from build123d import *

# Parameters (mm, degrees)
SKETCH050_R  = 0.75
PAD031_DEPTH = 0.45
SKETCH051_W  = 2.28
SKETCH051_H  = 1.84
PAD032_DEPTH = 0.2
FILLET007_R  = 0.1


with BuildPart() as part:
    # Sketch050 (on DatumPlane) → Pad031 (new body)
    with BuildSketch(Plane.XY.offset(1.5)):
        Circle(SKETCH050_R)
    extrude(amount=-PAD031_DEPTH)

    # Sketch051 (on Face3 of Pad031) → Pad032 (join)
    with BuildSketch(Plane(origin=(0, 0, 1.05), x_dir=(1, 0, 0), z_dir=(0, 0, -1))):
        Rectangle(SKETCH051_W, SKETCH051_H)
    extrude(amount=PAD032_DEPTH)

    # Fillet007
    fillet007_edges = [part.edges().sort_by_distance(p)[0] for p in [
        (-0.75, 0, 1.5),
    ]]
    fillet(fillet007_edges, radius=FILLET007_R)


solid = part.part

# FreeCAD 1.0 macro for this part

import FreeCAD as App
import Part
import Sketcher
from FreeCAD import Vector
Q = App.Units.Quantity


def edges_at(feature, points):
    """Names of the edges that pass closest to the given points."""
    edges = feature.Shape.Edges
    near = lambda p: min(range(len(edges)), key=lambda i: edges[i].distToShape(Part.Vertex(*p))[0])
    return sorted({f"Edge{near(p) + 1}" for p in points})


def add_polygon(sketch, points):
    """Adds a closed chain of lines whose ends are joined by coincident constraints."""
    first, n = sketch.GeometryCount, len(points)
    for a, b in zip(points, points[1:] + points[:1]):
        sketch.addGeometry(Part.LineSegment(App.Vector(*a, 0), App.Vector(*b, 0)), False)
    for i in range(n):
        sketch.addConstraint(Sketcher.Constraint("Coincident", first + i, 2, first + (i + 1) % n, 1))

doc = App.newDocument("Part")
body = doc.addObject("PartDesign::Body", "Body")

# Sketch on XY plane
sketch1 = body.newObject("Sketcher::SketchObject", "Sketch")
sketch1.AttachmentSupport = (doc.getObject("XY_Plane"), [""])
sketch1.MapMode = "FlatFace"
sketch1.AttachmentOffset = App.Placement(Vector(0, 0, 1.5), App.Rotation())
sketch1.addGeometry(Part.Circle(Vector(0, 0, 0), Vector(0, 0, 1), 0.75), False)
sketch1.addConstraint([
    Sketcher.Constraint("Coincident", 0, 3, -1, 1),
    Sketcher.Constraint("Diameter", 0, Q("1.5 mm")),
])
pad1 = body.newObject("PartDesign::Pad", "Pad")
pad1.Profile = sketch1
pad1.Length = 0.45
pad1.Reversed = True

# Sketch on XY plane
sketch2 = body.newObject("Sketcher::SketchObject", "Sketch001")
sketch2.AttachmentSupport = (doc.getObject("XY_Plane"), [""])
sketch2.MapMode = "FlatFace"
sketch2.AttachmentOffset = App.Placement(Vector(0, 0, 1.05), App.Rotation())
add_polygon(sketch2, [(-1.14, -0.92), (-1.14, 0.92), (1.14, 0.92), (1.14, -0.92)])  # lines 0-3
sketch2.addConstraint([
    Sketcher.Constraint("Vertical", 0),
    Sketcher.Constraint("Horizontal", 1),
    Sketcher.Constraint("Vertical", 2),
    Sketcher.Constraint("Horizontal", 3),
    Sketcher.Constraint("Symmetric", 0, 2, 2, 2, -1, 1),
    Sketcher.Constraint("DistanceX", 1, 1, 1, 2, Q("2.28 mm")),
    Sketcher.Constraint("DistanceY", 0, 1, 0, 2, Q("1.84 mm")),
])
pad2 = body.newObject("PartDesign::Pad", "Pad001")
pad2.Profile = sketch2
pad2.Length = 0.2
pad2.Reversed = True
doc.recompute()

fillet = body.newObject("PartDesign::Fillet", "Fillet")
fillet.Base = (pad2, edges_at(pad2, [(-0.75, 0, 1.5)]))
fillet.Radius = 0.1

doc.recompute()
